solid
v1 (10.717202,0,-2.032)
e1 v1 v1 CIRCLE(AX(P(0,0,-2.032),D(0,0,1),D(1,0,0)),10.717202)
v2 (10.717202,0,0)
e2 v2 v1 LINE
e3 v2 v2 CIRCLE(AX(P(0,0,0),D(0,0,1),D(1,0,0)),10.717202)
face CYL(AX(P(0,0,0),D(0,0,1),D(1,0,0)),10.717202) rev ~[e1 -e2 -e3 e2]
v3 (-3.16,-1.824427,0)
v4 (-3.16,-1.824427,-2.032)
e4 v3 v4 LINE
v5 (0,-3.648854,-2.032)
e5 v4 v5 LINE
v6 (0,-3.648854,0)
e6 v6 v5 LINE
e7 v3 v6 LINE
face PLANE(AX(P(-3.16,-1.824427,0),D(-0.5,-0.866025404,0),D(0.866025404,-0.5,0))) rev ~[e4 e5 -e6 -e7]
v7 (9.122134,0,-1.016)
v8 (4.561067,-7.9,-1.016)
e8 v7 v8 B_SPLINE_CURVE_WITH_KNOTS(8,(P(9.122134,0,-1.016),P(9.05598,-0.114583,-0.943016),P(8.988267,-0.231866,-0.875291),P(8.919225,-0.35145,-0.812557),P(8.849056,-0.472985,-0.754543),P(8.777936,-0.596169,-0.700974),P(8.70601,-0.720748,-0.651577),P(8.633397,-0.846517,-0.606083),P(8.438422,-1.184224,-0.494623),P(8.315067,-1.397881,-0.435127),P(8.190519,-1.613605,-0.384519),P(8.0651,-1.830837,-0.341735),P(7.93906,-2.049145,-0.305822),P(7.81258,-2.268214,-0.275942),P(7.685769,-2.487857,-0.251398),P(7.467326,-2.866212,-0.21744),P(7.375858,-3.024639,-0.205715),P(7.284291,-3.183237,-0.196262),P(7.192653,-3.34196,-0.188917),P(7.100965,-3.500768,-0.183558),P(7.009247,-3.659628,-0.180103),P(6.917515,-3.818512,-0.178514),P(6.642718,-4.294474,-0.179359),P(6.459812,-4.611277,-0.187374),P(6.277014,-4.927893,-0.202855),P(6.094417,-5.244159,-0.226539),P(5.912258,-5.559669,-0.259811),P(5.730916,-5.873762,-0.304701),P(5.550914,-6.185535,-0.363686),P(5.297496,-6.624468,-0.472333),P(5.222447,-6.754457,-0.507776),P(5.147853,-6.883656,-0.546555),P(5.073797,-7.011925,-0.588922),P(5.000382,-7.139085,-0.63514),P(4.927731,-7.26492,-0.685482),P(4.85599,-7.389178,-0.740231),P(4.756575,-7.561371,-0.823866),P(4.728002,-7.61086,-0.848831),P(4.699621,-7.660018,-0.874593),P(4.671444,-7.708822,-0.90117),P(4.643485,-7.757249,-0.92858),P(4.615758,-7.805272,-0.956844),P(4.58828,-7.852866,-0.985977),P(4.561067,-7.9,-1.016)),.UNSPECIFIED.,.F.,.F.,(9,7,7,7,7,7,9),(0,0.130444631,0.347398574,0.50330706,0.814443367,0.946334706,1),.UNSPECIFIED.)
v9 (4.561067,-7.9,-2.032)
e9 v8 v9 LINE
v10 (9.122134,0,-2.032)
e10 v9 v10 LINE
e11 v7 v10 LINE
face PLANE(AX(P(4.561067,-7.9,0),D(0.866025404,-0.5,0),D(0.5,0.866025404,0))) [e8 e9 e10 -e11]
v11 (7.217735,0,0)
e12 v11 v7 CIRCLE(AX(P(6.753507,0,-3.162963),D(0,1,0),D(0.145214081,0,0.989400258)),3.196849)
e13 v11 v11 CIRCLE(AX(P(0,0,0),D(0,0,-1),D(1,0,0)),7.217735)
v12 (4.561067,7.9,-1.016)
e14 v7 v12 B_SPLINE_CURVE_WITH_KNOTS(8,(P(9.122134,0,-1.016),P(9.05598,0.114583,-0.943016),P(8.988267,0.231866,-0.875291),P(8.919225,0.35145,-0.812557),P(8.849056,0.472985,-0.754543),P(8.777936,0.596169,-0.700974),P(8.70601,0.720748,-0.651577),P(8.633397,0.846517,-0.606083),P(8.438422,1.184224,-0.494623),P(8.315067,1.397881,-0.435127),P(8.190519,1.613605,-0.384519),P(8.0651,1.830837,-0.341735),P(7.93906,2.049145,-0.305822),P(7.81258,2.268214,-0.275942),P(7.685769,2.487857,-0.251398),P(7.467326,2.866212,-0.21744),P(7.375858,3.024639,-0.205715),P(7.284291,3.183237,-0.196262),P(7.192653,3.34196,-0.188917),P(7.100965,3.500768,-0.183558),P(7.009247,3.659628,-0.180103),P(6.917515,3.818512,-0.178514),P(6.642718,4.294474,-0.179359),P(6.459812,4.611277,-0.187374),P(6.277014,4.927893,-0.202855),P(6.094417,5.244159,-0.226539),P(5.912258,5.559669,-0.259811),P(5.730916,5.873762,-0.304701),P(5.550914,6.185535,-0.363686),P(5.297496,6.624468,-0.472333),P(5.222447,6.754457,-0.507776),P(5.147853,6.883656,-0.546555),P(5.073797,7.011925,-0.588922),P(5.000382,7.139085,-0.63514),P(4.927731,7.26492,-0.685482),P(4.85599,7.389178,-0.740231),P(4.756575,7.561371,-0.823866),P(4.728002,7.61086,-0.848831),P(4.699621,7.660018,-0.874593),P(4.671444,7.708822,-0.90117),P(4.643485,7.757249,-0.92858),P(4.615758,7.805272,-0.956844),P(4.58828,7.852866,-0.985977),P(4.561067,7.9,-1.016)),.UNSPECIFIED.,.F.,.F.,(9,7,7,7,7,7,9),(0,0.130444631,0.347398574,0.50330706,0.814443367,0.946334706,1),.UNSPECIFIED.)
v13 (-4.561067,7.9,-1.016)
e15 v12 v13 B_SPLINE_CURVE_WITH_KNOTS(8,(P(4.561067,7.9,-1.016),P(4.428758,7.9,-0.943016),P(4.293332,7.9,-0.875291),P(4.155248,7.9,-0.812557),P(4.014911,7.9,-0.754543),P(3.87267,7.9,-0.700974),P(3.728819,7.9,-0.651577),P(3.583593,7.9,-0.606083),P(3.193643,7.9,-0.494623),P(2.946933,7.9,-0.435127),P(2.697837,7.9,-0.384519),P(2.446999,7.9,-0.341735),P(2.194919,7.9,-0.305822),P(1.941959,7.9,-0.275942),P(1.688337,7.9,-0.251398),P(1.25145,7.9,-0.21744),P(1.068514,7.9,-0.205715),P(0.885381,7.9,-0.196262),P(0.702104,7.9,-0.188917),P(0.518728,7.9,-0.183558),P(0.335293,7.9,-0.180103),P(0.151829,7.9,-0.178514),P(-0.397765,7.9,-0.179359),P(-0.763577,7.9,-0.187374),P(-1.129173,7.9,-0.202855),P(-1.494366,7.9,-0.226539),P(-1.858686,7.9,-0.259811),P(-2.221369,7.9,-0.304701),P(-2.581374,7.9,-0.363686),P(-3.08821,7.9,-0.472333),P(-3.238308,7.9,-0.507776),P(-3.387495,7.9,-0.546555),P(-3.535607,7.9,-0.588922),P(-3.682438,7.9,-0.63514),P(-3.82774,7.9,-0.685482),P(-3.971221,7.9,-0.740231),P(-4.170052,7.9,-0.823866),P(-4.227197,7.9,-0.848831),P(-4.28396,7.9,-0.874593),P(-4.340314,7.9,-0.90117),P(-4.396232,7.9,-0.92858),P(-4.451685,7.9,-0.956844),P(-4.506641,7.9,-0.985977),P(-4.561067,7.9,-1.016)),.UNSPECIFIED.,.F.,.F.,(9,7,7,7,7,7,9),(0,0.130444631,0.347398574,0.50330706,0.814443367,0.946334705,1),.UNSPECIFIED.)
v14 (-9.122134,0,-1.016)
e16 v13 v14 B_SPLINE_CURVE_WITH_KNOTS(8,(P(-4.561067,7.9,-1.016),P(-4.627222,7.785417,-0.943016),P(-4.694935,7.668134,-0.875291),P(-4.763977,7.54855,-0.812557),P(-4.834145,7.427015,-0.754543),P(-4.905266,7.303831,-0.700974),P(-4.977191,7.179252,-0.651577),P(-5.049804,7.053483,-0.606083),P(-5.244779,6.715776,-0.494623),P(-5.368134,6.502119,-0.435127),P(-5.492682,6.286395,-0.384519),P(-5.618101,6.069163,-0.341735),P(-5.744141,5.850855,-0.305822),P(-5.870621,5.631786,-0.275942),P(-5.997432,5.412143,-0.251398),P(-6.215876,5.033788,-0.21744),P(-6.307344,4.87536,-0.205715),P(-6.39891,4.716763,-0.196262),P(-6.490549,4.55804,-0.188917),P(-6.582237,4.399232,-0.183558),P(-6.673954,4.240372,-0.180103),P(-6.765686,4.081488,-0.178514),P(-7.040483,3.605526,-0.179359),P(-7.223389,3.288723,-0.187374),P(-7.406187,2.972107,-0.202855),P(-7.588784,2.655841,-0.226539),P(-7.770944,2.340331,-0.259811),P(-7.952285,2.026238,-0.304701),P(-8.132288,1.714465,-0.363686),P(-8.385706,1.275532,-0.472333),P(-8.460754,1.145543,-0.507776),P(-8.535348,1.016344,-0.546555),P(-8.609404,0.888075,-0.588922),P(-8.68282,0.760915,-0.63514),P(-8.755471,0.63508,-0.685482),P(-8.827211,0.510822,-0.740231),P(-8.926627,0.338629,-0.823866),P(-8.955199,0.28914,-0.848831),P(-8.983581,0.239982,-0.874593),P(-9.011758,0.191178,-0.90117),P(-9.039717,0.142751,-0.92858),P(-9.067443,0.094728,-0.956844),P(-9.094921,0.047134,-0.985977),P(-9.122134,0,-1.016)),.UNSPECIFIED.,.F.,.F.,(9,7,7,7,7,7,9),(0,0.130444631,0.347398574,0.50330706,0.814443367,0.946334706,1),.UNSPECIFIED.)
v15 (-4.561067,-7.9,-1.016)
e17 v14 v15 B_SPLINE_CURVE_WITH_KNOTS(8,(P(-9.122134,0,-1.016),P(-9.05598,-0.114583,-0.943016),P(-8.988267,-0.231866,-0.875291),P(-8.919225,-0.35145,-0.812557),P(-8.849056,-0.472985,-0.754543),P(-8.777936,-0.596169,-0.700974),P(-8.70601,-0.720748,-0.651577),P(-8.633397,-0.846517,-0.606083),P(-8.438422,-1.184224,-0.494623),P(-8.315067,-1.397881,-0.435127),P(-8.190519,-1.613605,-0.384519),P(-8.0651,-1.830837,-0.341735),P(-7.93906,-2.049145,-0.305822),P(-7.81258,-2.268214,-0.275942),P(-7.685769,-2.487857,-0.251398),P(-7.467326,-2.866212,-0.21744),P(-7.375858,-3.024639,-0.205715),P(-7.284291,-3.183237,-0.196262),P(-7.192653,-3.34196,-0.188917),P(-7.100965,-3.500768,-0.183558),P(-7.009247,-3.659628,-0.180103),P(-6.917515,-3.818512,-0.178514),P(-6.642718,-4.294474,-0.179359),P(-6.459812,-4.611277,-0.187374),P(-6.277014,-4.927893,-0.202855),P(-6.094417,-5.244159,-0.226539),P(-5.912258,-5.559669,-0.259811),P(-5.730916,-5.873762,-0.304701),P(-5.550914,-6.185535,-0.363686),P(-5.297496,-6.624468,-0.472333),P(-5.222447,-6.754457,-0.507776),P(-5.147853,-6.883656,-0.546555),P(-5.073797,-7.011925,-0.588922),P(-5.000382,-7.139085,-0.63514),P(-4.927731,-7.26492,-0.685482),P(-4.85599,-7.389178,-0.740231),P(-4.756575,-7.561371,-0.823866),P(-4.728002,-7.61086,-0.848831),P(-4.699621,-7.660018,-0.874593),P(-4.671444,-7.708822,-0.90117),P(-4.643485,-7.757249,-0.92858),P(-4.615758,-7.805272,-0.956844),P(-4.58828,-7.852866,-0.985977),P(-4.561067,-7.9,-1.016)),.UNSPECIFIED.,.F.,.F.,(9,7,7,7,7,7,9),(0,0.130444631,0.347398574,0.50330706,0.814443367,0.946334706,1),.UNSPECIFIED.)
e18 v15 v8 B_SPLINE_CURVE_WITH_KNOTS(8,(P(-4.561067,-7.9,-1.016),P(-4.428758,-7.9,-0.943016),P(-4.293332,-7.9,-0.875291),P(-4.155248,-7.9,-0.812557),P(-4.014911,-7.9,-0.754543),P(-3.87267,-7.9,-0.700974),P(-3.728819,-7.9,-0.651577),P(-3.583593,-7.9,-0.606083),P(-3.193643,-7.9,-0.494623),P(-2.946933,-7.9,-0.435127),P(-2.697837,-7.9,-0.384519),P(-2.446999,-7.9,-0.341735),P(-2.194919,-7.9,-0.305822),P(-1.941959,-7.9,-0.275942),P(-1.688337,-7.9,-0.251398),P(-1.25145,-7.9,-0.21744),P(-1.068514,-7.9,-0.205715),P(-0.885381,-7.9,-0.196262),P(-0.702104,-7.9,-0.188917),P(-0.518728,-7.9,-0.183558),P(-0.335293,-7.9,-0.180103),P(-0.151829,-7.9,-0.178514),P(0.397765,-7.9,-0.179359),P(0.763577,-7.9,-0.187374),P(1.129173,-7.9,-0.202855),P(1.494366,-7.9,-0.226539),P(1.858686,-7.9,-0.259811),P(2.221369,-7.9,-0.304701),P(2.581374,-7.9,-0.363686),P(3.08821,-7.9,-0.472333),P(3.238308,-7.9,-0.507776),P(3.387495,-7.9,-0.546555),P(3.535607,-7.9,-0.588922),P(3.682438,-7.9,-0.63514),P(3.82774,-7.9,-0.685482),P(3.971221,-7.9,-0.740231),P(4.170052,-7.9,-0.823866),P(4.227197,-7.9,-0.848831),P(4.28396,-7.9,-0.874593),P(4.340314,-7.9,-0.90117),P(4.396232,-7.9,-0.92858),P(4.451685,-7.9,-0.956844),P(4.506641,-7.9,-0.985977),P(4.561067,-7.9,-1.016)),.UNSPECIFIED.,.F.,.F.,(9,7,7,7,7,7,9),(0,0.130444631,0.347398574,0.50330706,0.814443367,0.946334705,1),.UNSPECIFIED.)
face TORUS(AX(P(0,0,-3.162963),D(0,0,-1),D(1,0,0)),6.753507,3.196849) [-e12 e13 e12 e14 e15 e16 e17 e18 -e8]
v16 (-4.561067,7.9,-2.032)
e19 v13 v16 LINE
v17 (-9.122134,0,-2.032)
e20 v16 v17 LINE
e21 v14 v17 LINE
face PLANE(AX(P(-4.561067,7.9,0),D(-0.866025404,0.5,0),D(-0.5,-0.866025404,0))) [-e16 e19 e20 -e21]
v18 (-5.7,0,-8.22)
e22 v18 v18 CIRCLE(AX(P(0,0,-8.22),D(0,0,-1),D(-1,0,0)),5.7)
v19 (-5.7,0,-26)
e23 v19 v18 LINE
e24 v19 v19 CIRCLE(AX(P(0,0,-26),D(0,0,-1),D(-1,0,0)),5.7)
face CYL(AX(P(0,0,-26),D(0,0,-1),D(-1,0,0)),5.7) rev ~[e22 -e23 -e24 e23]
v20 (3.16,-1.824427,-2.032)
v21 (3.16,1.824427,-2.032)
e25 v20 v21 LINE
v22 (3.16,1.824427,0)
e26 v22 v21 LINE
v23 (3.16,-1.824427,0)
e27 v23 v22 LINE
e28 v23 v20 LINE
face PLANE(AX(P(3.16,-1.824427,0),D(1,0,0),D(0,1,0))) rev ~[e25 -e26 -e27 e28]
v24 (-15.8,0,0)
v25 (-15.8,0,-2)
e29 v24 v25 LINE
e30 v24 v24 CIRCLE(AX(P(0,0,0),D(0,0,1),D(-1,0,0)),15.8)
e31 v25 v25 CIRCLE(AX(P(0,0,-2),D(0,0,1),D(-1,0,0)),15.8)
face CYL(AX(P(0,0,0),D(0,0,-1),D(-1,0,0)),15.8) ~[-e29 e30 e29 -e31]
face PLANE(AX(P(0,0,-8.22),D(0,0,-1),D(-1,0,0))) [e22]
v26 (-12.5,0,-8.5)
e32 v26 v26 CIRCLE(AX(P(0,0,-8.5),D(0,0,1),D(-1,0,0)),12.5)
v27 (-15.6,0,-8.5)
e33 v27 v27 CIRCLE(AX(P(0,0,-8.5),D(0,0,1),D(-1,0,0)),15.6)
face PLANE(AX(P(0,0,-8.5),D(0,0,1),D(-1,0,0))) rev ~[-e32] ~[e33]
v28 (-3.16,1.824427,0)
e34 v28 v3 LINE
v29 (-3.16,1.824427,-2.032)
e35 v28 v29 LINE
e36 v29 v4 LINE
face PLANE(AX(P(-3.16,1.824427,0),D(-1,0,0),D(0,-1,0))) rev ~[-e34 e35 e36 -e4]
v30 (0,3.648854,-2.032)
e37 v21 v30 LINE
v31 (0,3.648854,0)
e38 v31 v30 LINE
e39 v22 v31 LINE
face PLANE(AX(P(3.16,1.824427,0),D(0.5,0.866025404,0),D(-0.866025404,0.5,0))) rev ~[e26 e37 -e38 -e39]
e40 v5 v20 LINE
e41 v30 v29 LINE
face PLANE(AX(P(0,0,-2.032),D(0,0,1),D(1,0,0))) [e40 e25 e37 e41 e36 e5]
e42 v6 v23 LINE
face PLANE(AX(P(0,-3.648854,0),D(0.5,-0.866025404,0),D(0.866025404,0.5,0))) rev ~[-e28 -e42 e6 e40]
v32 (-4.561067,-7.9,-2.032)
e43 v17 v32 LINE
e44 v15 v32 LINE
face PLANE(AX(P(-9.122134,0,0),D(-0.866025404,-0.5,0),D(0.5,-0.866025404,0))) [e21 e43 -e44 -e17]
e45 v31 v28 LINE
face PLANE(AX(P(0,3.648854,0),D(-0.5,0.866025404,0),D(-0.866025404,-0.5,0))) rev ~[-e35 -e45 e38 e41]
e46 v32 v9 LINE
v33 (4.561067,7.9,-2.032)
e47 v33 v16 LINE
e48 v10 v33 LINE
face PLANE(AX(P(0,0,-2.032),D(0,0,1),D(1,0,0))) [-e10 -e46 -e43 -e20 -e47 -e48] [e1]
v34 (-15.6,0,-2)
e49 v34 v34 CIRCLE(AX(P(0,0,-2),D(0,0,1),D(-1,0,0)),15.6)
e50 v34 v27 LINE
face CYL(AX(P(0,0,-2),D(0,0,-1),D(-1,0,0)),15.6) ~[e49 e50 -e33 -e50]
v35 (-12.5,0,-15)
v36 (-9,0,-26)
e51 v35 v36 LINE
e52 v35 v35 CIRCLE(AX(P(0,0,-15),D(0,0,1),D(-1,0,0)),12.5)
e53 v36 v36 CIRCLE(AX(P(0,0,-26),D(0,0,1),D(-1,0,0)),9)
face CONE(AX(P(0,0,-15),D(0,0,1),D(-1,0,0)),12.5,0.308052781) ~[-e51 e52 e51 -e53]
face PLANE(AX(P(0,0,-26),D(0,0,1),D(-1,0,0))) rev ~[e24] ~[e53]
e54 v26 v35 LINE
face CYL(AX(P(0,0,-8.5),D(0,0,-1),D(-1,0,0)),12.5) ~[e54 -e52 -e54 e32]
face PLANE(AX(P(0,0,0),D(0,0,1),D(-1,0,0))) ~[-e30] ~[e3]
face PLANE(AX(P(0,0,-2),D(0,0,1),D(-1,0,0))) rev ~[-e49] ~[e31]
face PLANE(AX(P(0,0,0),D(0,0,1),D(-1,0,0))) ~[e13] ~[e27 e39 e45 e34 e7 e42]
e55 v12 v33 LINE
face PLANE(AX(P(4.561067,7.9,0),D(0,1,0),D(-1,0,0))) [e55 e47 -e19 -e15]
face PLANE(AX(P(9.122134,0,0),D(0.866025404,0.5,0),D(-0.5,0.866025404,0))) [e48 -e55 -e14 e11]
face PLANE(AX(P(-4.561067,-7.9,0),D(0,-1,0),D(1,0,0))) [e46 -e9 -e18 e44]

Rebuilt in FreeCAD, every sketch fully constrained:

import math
import FreeCAD as App
import Part
import Sketcher

V = App.Vector
Q = App.Units.Quantity

doc = App.newDocument("Part")
body = doc.addObject("PartDesign::Body", "Body")

sketch1 = body.newObject("Sketcher::SketchObject", "Sketch")
sketch1.AttachmentSupport = (doc.getObject("YZ_Plane"), [""])
sketch1.MapMode = "FlatFace"
sketch1.addGeometry([
    Part.LineSegment(V(15.8, 0, 0), V(0, 0, 0)),
    Part.LineSegment(V(0, 0, 0), V(0, -26, 0)),
    Part.LineSegment(V(0, -26, 0), V(9, -26, 0)),
    Part.LineSegment(V(9, -26, 0), V(12.5, -15, 0)),
    Part.LineSegment(V(12.5, -15, 0), V(12.5, -8.5, 0)),
    Part.LineSegment(V(12.5, -8.5, 0), V(15.6, -8.5, 0)),
    Part.LineSegment(V(15.6, -8.5, 0), V(15.6, -2, 0)),
    Part.LineSegment(V(15.6, -2, 0), V(15.8, -2, 0)),
    Part.LineSegment(V(15.8, -2, 0), V(15.8, 0, 0)),
], False)
sketch1.addConstraint([
    Sketcher.Constraint("Coincident", 0, 2, 1, 1),
    Sketcher.Constraint("Coincident", 1, 2, 2, 1),
    Sketcher.Constraint("Coincident", 2, 2, 3, 1),
    Sketcher.Constraint("Coincident", 3, 2, 4, 1),
    Sketcher.Constraint("Coincident", 4, 2, 5, 1),
    Sketcher.Constraint("Coincident", 5, 2, 6, 1),
    Sketcher.Constraint("Coincident", 6, 2, 7, 1),
    Sketcher.Constraint("Coincident", 7, 2, 8, 1),
    Sketcher.Constraint("Coincident", 8, 2, 0, 1),
    Sketcher.Constraint("Horizontal", 0),
    Sketcher.Constraint("Vertical", 1),
    Sketcher.Constraint("Horizontal", 2),
    Sketcher.Constraint("Vertical", 4),
    Sketcher.Constraint("Horizontal", 5),
    Sketcher.Constraint("Vertical", 6),
    Sketcher.Constraint("Horizontal", 7),
    Sketcher.Constraint("Vertical", 8),
    Sketcher.Constraint("Coincident", 0, 2, -1, 1),
    Sketcher.Constraint("Equal", 4, 6),
    Sketcher.Constraint("DistanceX", 2, 1, 2, 2, 9.0),
    Sketcher.Constraint("DistanceY", 1, 2, 1, 1, 26.0),
    Sketcher.Constraint("DistanceY", 8, 1, 8, 2, 2.0),
    Sketcher.Constraint("DistanceX", 0, 2, 0, 1, 15.8),
    Sketcher.Constraint("DistanceX", 5, 1, 5, 2, 3.1),
    Sketcher.Constraint("DistanceX", 7, 1, 7, 2, 0.2),
    Sketcher.Constraint("DistanceY", 4, 1, 4, 2, 6.5),
])
revolution = body.newObject("PartDesign::Revolution", "Revolution")
revolution.Profile = sketch1
revolution.ReferenceAxis = (sketch1, ["V_Axis"])
revolution.Angle = 360

sketch2 = body.newObject("Sketcher::SketchObject", "Sketch001")
sketch2.AttachmentSupport = (doc.getObject("XY_Plane"), [""])
sketch2.MapMode = "FlatFace"
sketch2.AttachmentOffset = App.Placement(V(0, 0, -26), App.Rotation())
sketch2.addGeometry(Part.Circle(V(0, 0, 0), V(0, 0, 1), 5.7), False)
sketch2.addConstraint([
    Sketcher.Constraint("Coincident", 0, 3, -1, 1),
    Sketcher.Constraint("Diameter", 0, 11.4),
])
pocket1 = body.newObject("PartDesign::Pocket", "Pocket")
pocket1.Profile = sketch2
pocket1.Length = 17.78
pocket1.Reversed = True

sketch3 = body.newObject("Sketcher::SketchObject", "Sketch002")
sketch3.AttachmentSupport = (doc.getObject("XY_Plane"), [""])
sketch3.MapMode = "FlatFace"
sketch3.addGeometry([
    Part.Circle(V(0, 0, 0), V(0, 0, 1), 10.717202),
    Part.LineSegment(V(-4.561067, 7.9, 0), V(4.561067, 7.9, 0)),
    Part.LineSegment(V(4.561067, 7.9, 0), V(9.122134, 0, 0)),
    Part.LineSegment(V(9.122134, 0, 0), V(4.561067, -7.9, 0)),
    Part.LineSegment(V(4.561067, -7.9, 0), V(-4.561067, -7.9, 0)),
    Part.LineSegment(V(-4.561067, -7.9, 0), V(-9.122134, 0, 0)),
    Part.LineSegment(V(-9.122134, 0, 0), V(-4.561067, 7.9, 0)),
], False)
sketch3.addConstraint([
    Sketcher.Constraint("Coincident", 1, 2, 2, 1),
    Sketcher.Constraint("Coincident", 2, 2, 3, 1),
    Sketcher.Constraint("Coincident", 3, 2, 4, 1),
    Sketcher.Constraint("Coincident", 4, 2, 5, 1),
    Sketcher.Constraint("Coincident", 5, 2, 6, 1),
    Sketcher.Constraint("Coincident", 6, 2, 1, 1),
    Sketcher.Constraint("Horizontal", 1),
    Sketcher.Constraint("Horizontal", 4),
    Sketcher.Constraint("Coincident", 0, 3, -1, 1),
    Sketcher.Constraint("Symmetric", 1, 2, 4, 2, -1, 1),
    Sketcher.Constraint("Symmetric", 2, 2, 5, 2, -1, 1),
    Sketcher.Constraint("PointOnObject", 2, 2, -1),
    Sketcher.Constraint("Parallel", 3, 6),
    Sketcher.Constraint("Vertical", 1, 2, 3, 2),
    Sketcher.Constraint("Angle", 2, Q("-60 deg")),
    Sketcher.Constraint("DistanceY", -1, 1, 1, 2, 7.9),
    Sketcher.Constraint("Diameter", 0, 21.434404),
    Sketcher.Constraint("DistanceX", 4, 2, 2, 2, 13.683201),
])
pocket2 = body.newObject("PartDesign::Pocket", "Pocket001")
pocket2.Profile = sketch3
pocket2.Length = 2.032

sketch4 = body.newObject("Sketcher::SketchObject", "Sketch003")
sketch4.AttachmentSupport = (doc.getObject("XZ_Plane"), [""])
sketch4.MapMode = "FlatFace"
sketch4.addGeometry([
    Part.LineSegment(V(-9.122134, -1.016, 0), V(-9.122134, 0, 0)),
    Part.LineSegment(V(-9.122134, 0, 0), V(-7.217735, 0, 0)),
    Part.ArcOfCircle(Part.Circle(V(-6.753507, -3.162963, 0), V(0, 0, 1), 3.196849), math.radians(98.349676), math.radians(137.810305)),
], False)
sketch4.addConstraint([
    Sketcher.Constraint("Coincident", 0, 2, 1, 1),
    Sketcher.Constraint("Coincident", 1, 2, 2, 1),
    Sketcher.Constraint("Coincident", 2, 2, 0, 1),
    Sketcher.Constraint("Vertical", 0),
    Sketcher.Constraint("Horizontal", 1),
    Sketcher.Constraint("PointOnObject", 0, 2, -1),
    Sketcher.Constraint("DistanceY", 0, 1, 0, 2, 1.016),
    Sketcher.Constraint("Radius", 2, 3.196849),
    Sketcher.Constraint("DistanceX", 1, 1, 1, 2, 1.904399),
    Sketcher.Constraint("DistanceX", 2, 3, -1, 1, 6.753507),
])
groove = body.newObject("PartDesign::Groove", "Groove")
groove.Profile = sketch4
groove.ReferenceAxis = (sketch4, ["V_Axis"])
groove.Angle = 360

sketch5 = body.newObject("Sketcher::SketchObject", "Sketch004")
sketch5.AttachmentSupport = (doc.getObject("XY_Plane"), [""])
sketch5.MapMode = "FlatFace"
sketch5.addGeometry([
    Part.LineSegment(V(0, 3.648854, 0), V(-3.16, 1.824427, 0)),
    Part.LineSegment(V(-3.16, 1.824427, 0), V(-3.16, -1.824427, 0)),
    Part.LineSegment(V(-3.16, -1.824427, 0), V(0, -3.648854, 0)),
    Part.LineSegment(V(0, -3.648854, 0), V(3.16, -1.824427, 0)),
    Part.LineSegment(V(3.16, -1.824427, 0), V(3.16, 1.824427, 0)),
    Part.LineSegment(V(3.16, 1.824427, 0), V(0, 3.648854, 0)),
], False)
sketch5.addConstraint([
    Sketcher.Constraint("Coincident", 0, 2, 1, 1),
    Sketcher.Constraint("Coincident", 1, 2, 2, 1),
    Sketcher.Constraint("Coincident", 2, 2, 3, 1),
    Sketcher.Constraint("Coincident", 3, 2, 4, 1),
    Sketcher.Constraint("Coincident", 4, 2, 5, 1),
    Sketcher.Constraint("Coincident", 5, 2, 0, 1),
    Sketcher.Constraint("Vertical", 1),
    Sketcher.Constraint("Vertical", 4),
    Sketcher.Constraint("Symmetric", 0, 2, 3, 2, -1, 1),
    Sketcher.Constraint("Symmetric", 2, 2, 5, 2, -1, 1),
    Sketcher.Constraint("PointOnObject", 2, 2, -2),
    Sketcher.Constraint("Parallel", 2, 5),
    Sketcher.Constraint("Horizontal", 1, 2, 3, 2),
    Sketcher.Constraint("Angle", 0, Q("-150 deg")),
    Sketcher.Constraint("DistanceX", 0, 2, -1, 1, 3.16),
    Sketcher.Constraint("DistanceY", 1, 2, 1, 1, 3.648854),
])
pocket3 = body.newObject("PartDesign::Pocket", "Pocket002")
pocket3.Profile = sketch5
pocket3.Length = 2.032

doc.recompute()
